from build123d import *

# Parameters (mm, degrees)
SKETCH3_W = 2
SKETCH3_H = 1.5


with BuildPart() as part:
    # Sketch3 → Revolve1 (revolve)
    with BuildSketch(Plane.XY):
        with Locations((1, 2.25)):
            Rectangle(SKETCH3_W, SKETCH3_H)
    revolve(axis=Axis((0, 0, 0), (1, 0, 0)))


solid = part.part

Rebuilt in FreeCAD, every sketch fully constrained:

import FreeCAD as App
import Part
import Sketcher
from FreeCAD import Vector
Q = App.Units.Quantity


def add_polygon(sketch, points):
    """Adds a closed chain of lines whose ends are joined by coincident constraints."""
    first, n = sketch.GeometryCount, len(points)
    for a, b in zip(points, points[1:] + points[:1]):
        sketch.addGeometry(Part.LineSegment(App.Vector(*a, 0), App.Vector(*b, 0)), False)
    for i in range(n):
        sketch.addConstraint(Sketcher.Constraint("Coincident", first + i, 2, first + (i + 1) % n, 1))

doc = App.newDocument("Part")
body = doc.addObject("PartDesign::Body", "Body")

sketch1 = doc.addObject("Sketcher::SketchObject", "Sketch")
body.addObject(sketch1)
sketch1.AttachmentSupport = (doc.XY_Plane, [""])
sketch1.MapMode = "FlatFace"
add_polygon(sketch1, [(0, 3), (0, 1.5), (2, 1.5), (2, 3)])
sketch1.addConstraint([
    Sketcher.Constraint("Vertical", 0),
    Sketcher.Constraint("Horizontal", 1),
    Sketcher.Constraint("Vertical", 2),
    Sketcher.Constraint("Horizontal", 3),
    Sketcher.Constraint("PointOnObject", 0, 2, -2),
    Sketcher.Constraint("DistanceX", 1, 1, 1, 2, Q("2 mm")),
    Sketcher.Constraint("DistanceY", 0, 2, 0, 1, Q("1.5 mm")),
    Sketcher.Constraint("DistanceY", -1, 1, 2, 2, Q("3 mm")),
])
revolution = doc.addObject("PartDesign::Revolution", "Revolution")
body.addObject(revolution)
revolution.Profile = sketch1
revolution.ReferenceAxis = (sketch1, ["H_Axis"])
revolution.Angle = 360

doc.recompute()
